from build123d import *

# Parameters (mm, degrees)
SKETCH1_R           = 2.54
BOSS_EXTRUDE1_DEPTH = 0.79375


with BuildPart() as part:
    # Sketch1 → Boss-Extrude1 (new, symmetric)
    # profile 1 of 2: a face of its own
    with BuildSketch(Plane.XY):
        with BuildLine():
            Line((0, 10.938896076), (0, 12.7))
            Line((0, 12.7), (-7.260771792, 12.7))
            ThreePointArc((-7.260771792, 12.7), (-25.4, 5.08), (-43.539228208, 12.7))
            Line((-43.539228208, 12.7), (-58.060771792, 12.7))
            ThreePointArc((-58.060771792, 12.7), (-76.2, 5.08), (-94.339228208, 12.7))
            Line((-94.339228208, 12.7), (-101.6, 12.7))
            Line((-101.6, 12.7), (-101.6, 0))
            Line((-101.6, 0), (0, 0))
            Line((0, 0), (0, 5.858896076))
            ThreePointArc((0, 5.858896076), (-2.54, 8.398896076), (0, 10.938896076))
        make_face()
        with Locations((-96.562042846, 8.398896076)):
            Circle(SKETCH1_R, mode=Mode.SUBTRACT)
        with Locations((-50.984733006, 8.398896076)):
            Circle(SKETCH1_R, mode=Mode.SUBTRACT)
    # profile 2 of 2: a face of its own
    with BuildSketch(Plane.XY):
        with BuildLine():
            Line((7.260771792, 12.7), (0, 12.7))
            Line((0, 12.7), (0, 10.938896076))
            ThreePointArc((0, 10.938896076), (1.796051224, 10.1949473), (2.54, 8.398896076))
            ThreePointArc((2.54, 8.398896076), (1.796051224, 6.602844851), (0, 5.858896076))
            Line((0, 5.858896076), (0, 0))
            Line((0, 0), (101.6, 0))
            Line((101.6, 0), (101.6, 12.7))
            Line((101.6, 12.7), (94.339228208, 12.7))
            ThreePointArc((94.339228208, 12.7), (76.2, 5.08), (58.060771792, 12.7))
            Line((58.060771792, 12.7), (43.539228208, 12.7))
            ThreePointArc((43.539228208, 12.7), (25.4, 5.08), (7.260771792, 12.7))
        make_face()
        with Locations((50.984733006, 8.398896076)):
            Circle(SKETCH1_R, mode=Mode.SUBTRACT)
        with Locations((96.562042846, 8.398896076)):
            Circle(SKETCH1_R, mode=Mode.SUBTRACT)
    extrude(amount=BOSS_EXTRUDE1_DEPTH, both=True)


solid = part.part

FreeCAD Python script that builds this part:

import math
import FreeCAD as App
import Part
import Sketcher

V = App.Vector
Q = App.Units.Quantity

doc = App.newDocument("Part")
body = doc.addObject("PartDesign::Body", "Body")

# Sketch on XY plane
sketch1 = body.newObject("Sketcher::SketchObject", "Sketch")
sketch1.AttachmentSupport = (doc.getObject("XY_Plane"), [""])
sketch1.MapMode = "FlatFace"
sketch1.addGeometry(Part.ArcOfCircle(Part.Circle(V(-25.4, 30.5, 0), V(0, 0, 1), 25.4), math.radians(-136), math.radians(-44)), False)
sketch1.addGeometry(Part.LineSegment(V(-43.5, 12.7, 0), V(-58.1, 12.7, 0)), False)
sketch1.addGeometry(Part.ArcOfCircle(Part.Circle(V(-76.2, 30.5, 0), V(0, 0, 1), 25.4), math.radians(-136), math.radians(-44)), False)
sketch1.addGeometry(Part.LineSegment(V(-94.3, 12.7, 0), V(-101.6, 12.7, 0)), False)
sketch1.addGeometry(Part.LineSegment(V(-101.6, 12.7, 0), V(-101.6, 0, 0)), False)
sketch1.addGeometry(Part.LineSegment(V(-101.6, 0, 0), V(101.6, 0, 0)), False)
sketch1.addGeometry(Part.LineSegment(V(101.6, 0, 0), V(101.6, 12.7, 0)), False)
sketch1.addGeometry(Part.LineSegment(V(101.6, 12.7, 0), V(94.3, 12.7, 0)), False)
sketch1.addGeometry(Part.ArcOfCircle(Part.Circle(V(76.2, 30.5, 0), V(0, 0, 1), 25.4), math.radians(-136), math.radians(-44)), False)
sketch1.addGeometry(Part.LineSegment(V(58.1, 12.7, 0), V(43.5, 12.7, 0)), False)
sketch1.addGeometry(Part.ArcOfCircle(Part.Circle(V(25.4, 30.5, 0), V(0, 0, 1), 25.4), math.radians(-136), math.radians(-44)), False)
sketch1.addGeometry(Part.LineSegment(V(7.3, 12.7, 0), V(-7.3, 12.7, 0)), False)
sketch1.addGeometry(Part.ArcOfCircle(Part.Circle(V(0, 8.4, 0), V(0, 0, 1), 2.5), math.radians(90), math.radians(270)), False)
sketch1.addGeometry(Part.ArcOfCircle(Part.Circle(V(0, 8.4, 0), V(0, 0, 1), 2.5), math.radians(0), math.radians(90)), False)
sketch1.addGeometry(Part.ArcOfCircle(Part.Circle(V(0, 8.4, 0), V(0, 0, 1), 2.5), math.radians(-90), math.radians(0)), False)
sketch1.addGeometry(Part.Circle(V(-96.6, 8.4, 0), V(0, 0, 1), 2.5), False)
sketch1.addGeometry(Part.Circle(V(-51, 8.4, 0), V(0, 0, 1), 2.5), False)
sketch1.addGeometry(Part.Circle(V(96.6, 8.4, 0), V(0, 0, 1), 2.5), False)
sketch1.addGeometry(Part.Circle(V(51, 8.4, 0), V(0, 0, 1), 2.5), False)
sketch1.addConstraint(Sketcher.Constraint("Coincident", 0, 1, 1, 1))
sketch1.addConstraint(Sketcher.Constraint("Coincident", 1, 2, 2, 2))
sketch1.addConstraint(Sketcher.Constraint("Coincident", 2, 1, 3, 1))
sketch1.addConstraint(Sketcher.Constraint("Coincident", 3, 2, 4, 1))
sketch1.addConstraint(Sketcher.Constraint("Coincident", 4, 2, 5, 1))
sketch1.addConstraint(Sketcher.Constraint("Coincident", 5, 2, 6, 1))
sketch1.addConstraint(Sketcher.Constraint("Coincident", 6, 2, 7, 1))
sketch1.addConstraint(Sketcher.Constraint("Coincident", 7, 2, 8, 2))
sketch1.addConstraint(Sketcher.Constraint("Coincident", 8, 1, 9, 1))
sketch1.addConstraint(Sketcher.Constraint("Coincident", 9, 2, 10, 2))
sketch1.addConstraint(Sketcher.Constraint("Coincident", 10, 1, 11, 1))
sketch1.addConstraint(Sketcher.Constraint("Coincident", 11, 2, 0, 2))
sketch1.addConstraint(Sketcher.Constraint("Tangent", 12, 1, 13, 2))
sketch1.addConstraint(Sketcher.Constraint("Tangent", 13, 1, 14, 2))
sketch1.addConstraint(Sketcher.Constraint("Tangent", 14, 1, 12, 2))
sketch1.addConstraint(Sketcher.Constraint("Horizontal", 1))
sketch1.addConstraint(Sketcher.Constraint("Horizontal", 3))
sketch1.addConstraint(Sketcher.Constraint("Vertical", 4))
sketch1.addConstraint(Sketcher.Constraint("Horizontal", 5))
sketch1.addConstraint(Sketcher.Constraint("Vertical", 6))
sketch1.addConstraint(Sketcher.Constraint("Horizontal", 7))
sketch1.addConstraint(Sketcher.Constraint("Horizontal", 9))
sketch1.addConstraint(Sketcher.Constraint("Horizontal", 11))
sketch1.addConstraint(Sketcher.Constraint("Equal", 0, 2))
sketch1.addConstraint(Sketcher.Constraint("Equal", 2, 8))
sketch1.addConstraint(Sketcher.Constraint("Equal", 8, 10))
sketch1.addConstraint(Sketcher.Constraint("Equal", 14, 15))
sketch1.addConstraint(Sketcher.Constraint("Equal", 15, 16))
sketch1.addConstraint(Sketcher.Constraint("Equal", 16, 17))
sketch1.addConstraint(Sketcher.Constraint("Equal", 17, 18))
sketch1.addConstraint(Sketcher.Constraint("Symmetric", 4, 2, 5, 2, -1, 1))
sketch1.addConstraint(Sketcher.Constraint("Symmetric", 2, 3, 8, 3, -2))
sketch1.addConstraint(Sketcher.Constraint("Symmetric", 0, 3, 10, 3, -2))
sketch1.addConstraint(Sketcher.Constraint("Symmetric", 15, 3, 17, 3, -2))
sketch1.addConstraint(Sketcher.Constraint("Symmetric", 16, 3, 18, 3, -2))
sketch1.addConstraint(Sketcher.Constraint("PointOnObject", 12, 3, -2))
sketch1.addConstraint(Sketcher.Constraint("PointOnObject", 12, 1, -2))
sketch1.addConstraint(Sketcher.Constraint("PointOnObject", 14, 1, -2))
sketch1.addConstraint(Sketcher.Constraint("Horizontal", 0, 3, 2, 3))
sketch1.addConstraint(Sketcher.Constraint("Horizontal", 14, 3, 15, 3))
sketch1.addConstraint(Sketcher.Constraint("Horizontal", 15, 3, 16, 3))
sketch1.addConstraint(Sketcher.Constraint("Horizontal", 1, 2, 2, 1))
sketch1.addConstraint(Sketcher.Constraint("Horizontal", 3, 2, 6, 2))
sketch1.addConstraint(Sketcher.Constraint("Horizontal", 7, 2, 8, 1))
sketch1.addConstraint(Sketcher.Constraint("Horizontal", 9, 2, 10, 1))
sketch1.addConstraint(Sketcher.Constraint("Horizontal", 18, 3, 13, 1))
sketch1.addConstraint(Sketcher.Constraint("Equal", 9, 11))
sketch1.addConstraint(Sketcher.Constraint("Radius", 0, Q("1 in")))
sketch1.addConstraint(Sketcher.Constraint("Diameter", 15, Q("0.2 in")))
sketch1.addConstraint(Sketcher.Constraint("DistanceX", 5, 1, 5, 2, Q("8 in")))
sketch1.addConstraint(Sketcher.Constraint("DistanceY", 4, 2, 4, 1, Q("0.5 in")))
sketch1.addConstraint(Sketcher.Constraint("DistanceX", 0, 3, -1, 1, Q("1 in")))
sketch1.addConstraint(Sketcher.Constraint("DistanceY", -1, 1, 0, 3, Q("1.2 in")))
sketch1.addConstraint(Sketcher.Constraint("DistanceX", 15, 3, 16, 3, Q("45.57731 mm")))
sketch1.addConstraint(Sketcher.Constraint("DistanceX", 1, 2, 16, 3, Q("7.076039 mm")))
sketch1.addConstraint(Sketcher.Constraint("DistanceY", -1, 1, 12, 3, Q("8.398896 mm")))
pad1 = body.newObject("PartDesign::Pad", "Pad")
pad1.Profile = sketch1
pad1.Length = Q("0.0625 in")
pad1.Midplane = True

doc.recompute()
